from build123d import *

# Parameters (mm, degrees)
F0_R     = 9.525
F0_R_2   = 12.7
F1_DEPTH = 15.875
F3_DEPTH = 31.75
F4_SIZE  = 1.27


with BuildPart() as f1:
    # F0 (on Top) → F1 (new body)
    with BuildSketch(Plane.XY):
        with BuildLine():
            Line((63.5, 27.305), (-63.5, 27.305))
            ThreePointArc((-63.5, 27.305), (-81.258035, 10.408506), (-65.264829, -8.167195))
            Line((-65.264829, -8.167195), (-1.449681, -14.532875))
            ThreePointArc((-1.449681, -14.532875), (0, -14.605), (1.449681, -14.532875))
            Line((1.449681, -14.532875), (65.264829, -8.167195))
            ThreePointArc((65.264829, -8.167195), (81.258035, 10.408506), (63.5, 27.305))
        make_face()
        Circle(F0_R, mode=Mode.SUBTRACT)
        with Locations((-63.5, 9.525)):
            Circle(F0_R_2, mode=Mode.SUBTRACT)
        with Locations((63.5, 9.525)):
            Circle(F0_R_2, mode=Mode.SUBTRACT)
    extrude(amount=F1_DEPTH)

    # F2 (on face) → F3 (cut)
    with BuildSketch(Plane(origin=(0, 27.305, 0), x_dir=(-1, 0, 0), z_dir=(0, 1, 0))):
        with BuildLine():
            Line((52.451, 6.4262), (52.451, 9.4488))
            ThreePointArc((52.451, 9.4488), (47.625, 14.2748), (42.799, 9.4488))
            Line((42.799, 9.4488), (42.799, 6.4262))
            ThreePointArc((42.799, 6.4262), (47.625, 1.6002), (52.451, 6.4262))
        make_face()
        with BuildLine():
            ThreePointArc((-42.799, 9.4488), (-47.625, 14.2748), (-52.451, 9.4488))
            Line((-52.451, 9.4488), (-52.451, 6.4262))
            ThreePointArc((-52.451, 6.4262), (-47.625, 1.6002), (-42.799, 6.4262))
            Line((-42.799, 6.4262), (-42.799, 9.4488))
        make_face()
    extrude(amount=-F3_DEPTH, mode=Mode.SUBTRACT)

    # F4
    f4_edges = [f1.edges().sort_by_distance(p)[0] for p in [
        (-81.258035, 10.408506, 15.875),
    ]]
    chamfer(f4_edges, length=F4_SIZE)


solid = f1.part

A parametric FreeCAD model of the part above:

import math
import FreeCAD as App
import Part
import Sketcher

V = App.Vector
Q = App.Units.Quantity


def edges_at(feature, points):
    """Names of the edges that pass closest to the given points."""
    edges = feature.Shape.Edges
    near = lambda p: min(range(len(edges)), key=lambda i: edges[i].distToShape(Part.Vertex(*p))[0])
    return sorted({f"Edge{near(p) + 1}" for p in points})

doc = App.newDocument("Part")
body = doc.addObject("PartDesign::Body", "Body")

# Sketch on XY plane
sketch1 = doc.addObject("Sketcher::SketchObject", "Sketch")
body.addObject(sketch1)
sketch1.AttachmentSupport = (doc.XY_Plane, [""])
sketch1.MapMode = "FlatFace"
sketch1.addGeometry([
    Part.LineSegment(V(63.5, 27.3, 0), V(-63.5, 27.3, 0)),  # 0
    Part.ArcOfCircle(Part.Circle(V(-63.5, 9.5, 0), V(0, 0, 1), 17.8), math.radians(90), math.radians(264)),  # 1
    Part.LineSegment(V(-65.3, -8.2, 0), V(-1.4, -14.5, 0)),  # 2
    Part.ArcOfCircle(Part.Circle(V(0, 0, 0), V(0, 0, 1), 14.6), math.radians(-95.7), math.radians(-84.3)),  # 3
    Part.LineSegment(V(1.4, -14.5, 0), V(65.3, -8.2, 0)),  # 4
    Part.ArcOfCircle(Part.Circle(V(63.5, 9.5, 0), V(0, 0, 1), 17.8), math.radians(-84), math.radians(90)),  # 5
    Part.Circle(V(0, 0, 0), V(0, 0, 1), 9.5),  # 6
    Part.Circle(V(-63.5, 9.5, 0), V(0, 0, 1), 12.7),  # 7
    Part.Circle(V(63.5, 9.5, 0), V(0, 0, 1), 12.7),  # 8
], False)
sketch1.addConstraint([
    Sketcher.Constraint("Tangent", 0, 2, 1, 1),
    Sketcher.Constraint("Tangent", 1, 2, 2, 1),
    Sketcher.Constraint("Tangent", 2, 2, 3, 1),
    Sketcher.Constraint("Tangent", 3, 2, 4, 1),
    Sketcher.Constraint("Tangent", 4, 2, 5, 1),
    Sketcher.Constraint("Tangent", 5, 2, 0, 1),
    Sketcher.Constraint("Horizontal", 0),
    Sketcher.Constraint("Coincident", 6, 3, -1, 1),
    Sketcher.Constraint("Coincident", 7, 3, 1, 3),
    Sketcher.Constraint("Coincident", 8, 3, 5, 3),
    Sketcher.Constraint("Equal", 1, 5),
    Sketcher.Constraint("Equal", 7, 8),
    Sketcher.Constraint("PointOnObject", 3, 3, -2),
    Sketcher.Constraint("Equal", 2, 4),
    Sketcher.Constraint("Diameter", 7, Q("1 in")),
    Sketcher.Constraint("Radius", 1, Q("0.7 in")),
    Sketcher.Constraint("Diameter", 6, Q("0.75 in")),
    Sketcher.Constraint("DistanceX", 0, 2, 0, 1, Q("5 in")),
    Sketcher.Constraint("DistanceY", -1, 1, 1, 3, Q("0.375 in")),
    Sketcher.Constraint("Radius", 3, 14.60504),
    Sketcher.Constraint("DistanceX", 1, 2, -1, 1, 65.264829),
])
pad1 = doc.addObject("PartDesign::Pad", "Pad")
body.addObject(pad1)
pad1.Profile = sketch1
pad1.Length = Q("0.625 in")

# Sketch on XZ plane
sketch2 = doc.addObject("Sketcher::SketchObject", "Sketch001")
body.addObject(sketch2)
sketch2.AttachmentSupport = (doc.XZ_Plane, [""])
sketch2.MapMode = "FlatFace"
sketch2.AttachmentOffset = App.Placement(V(0, 0, -1.075 * 25.4), App.Rotation())
sketch2.addGeometry([
    Part.LineSegment(V(-52.5, 6.4, 0), V(-52.5, 9.4, 0)),  # 0
    Part.ArcOfCircle(Part.Circle(V(-47.6, 9.4, 0), V(0, 0, 1), 4.8), math.radians(0), math.radians(180)),  # 1
    Part.LineSegment(V(-42.8, 9.4, 0), V(-42.8, 6.4, 0)),  # 2
    Part.ArcOfCircle(Part.Circle(V(-47.6, 6.4, 0), V(0, 0, 1), 4.8), math.radians(180), math.radians(360)),  # 3
    Part.ArcOfCircle(Part.Circle(V(47.6, 9.4, 0), V(0, 0, 1), 4.8), math.radians(0), math.radians(180)),  # 4
    Part.LineSegment(V(52.5, 9.4, 0), V(52.5, 6.4, 0)),  # 5
    Part.ArcOfCircle(Part.Circle(V(47.6, 6.4, 0), V(0, 0, 1), 4.8), math.radians(180), math.radians(360)),  # 6
    Part.LineSegment(V(42.8, 6.4, 0), V(42.8, 9.4, 0)),  # 7
], False)
sketch2.addConstraint([
    Sketcher.Constraint("Tangent", 0, 2, 1, 2),
    Sketcher.Constraint("Tangent", 1, 1, 2, 1),
    Sketcher.Constraint("Tangent", 2, 2, 3, 2),
    Sketcher.Constraint("Tangent", 3, 1, 0, 1),
    Sketcher.Constraint("Tangent", 4, 1, 5, 1),
    Sketcher.Constraint("Tangent", 5, 2, 6, 2),
    Sketcher.Constraint("Tangent", 6, 1, 7, 1),
    Sketcher.Constraint("Tangent", 7, 2, 4, 2),
    Sketcher.Constraint("Vertical", 0),
    Sketcher.Constraint("Vertical", 2),
    Sketcher.Constraint("Vertical", 5),
    Sketcher.Constraint("Vertical", 7),
    Sketcher.Constraint("Equal", 3, 4),
    Sketcher.Constraint("Symmetric", 1, 3, 4, 3, -2),
    Sketcher.Constraint("Horizontal", 3, 3, 6, 3),
    Sketcher.Constraint("Radius", 1, Q("0.19 in")),
    Sketcher.Constraint("DistanceY", 0, 1, 0, 2, Q("0.119 in")),
    Sketcher.Constraint("DistanceX", 1, 3, 4, 3, Q("3.75 in")),
    Sketcher.Constraint("DistanceY", -1, 1, 1, 3, Q("0.372 in")),
])
pocket1 = doc.addObject("PartDesign::Pocket", "Pocket")
body.addObject(pocket1)
pocket1.Profile = sketch2
pocket1.Length = Q("1.25 in")
pocket1.Reversed = True
doc.recompute()

chamfer = doc.addObject("PartDesign::Chamfer", "Chamfer")
body.addObject(chamfer)
chamfer.Base = (pocket1, edges_at(pocket1, [(-81.258, 10.409, 15.875)]))
chamfer.Size = Q("0.05 in")

doc.recompute()
